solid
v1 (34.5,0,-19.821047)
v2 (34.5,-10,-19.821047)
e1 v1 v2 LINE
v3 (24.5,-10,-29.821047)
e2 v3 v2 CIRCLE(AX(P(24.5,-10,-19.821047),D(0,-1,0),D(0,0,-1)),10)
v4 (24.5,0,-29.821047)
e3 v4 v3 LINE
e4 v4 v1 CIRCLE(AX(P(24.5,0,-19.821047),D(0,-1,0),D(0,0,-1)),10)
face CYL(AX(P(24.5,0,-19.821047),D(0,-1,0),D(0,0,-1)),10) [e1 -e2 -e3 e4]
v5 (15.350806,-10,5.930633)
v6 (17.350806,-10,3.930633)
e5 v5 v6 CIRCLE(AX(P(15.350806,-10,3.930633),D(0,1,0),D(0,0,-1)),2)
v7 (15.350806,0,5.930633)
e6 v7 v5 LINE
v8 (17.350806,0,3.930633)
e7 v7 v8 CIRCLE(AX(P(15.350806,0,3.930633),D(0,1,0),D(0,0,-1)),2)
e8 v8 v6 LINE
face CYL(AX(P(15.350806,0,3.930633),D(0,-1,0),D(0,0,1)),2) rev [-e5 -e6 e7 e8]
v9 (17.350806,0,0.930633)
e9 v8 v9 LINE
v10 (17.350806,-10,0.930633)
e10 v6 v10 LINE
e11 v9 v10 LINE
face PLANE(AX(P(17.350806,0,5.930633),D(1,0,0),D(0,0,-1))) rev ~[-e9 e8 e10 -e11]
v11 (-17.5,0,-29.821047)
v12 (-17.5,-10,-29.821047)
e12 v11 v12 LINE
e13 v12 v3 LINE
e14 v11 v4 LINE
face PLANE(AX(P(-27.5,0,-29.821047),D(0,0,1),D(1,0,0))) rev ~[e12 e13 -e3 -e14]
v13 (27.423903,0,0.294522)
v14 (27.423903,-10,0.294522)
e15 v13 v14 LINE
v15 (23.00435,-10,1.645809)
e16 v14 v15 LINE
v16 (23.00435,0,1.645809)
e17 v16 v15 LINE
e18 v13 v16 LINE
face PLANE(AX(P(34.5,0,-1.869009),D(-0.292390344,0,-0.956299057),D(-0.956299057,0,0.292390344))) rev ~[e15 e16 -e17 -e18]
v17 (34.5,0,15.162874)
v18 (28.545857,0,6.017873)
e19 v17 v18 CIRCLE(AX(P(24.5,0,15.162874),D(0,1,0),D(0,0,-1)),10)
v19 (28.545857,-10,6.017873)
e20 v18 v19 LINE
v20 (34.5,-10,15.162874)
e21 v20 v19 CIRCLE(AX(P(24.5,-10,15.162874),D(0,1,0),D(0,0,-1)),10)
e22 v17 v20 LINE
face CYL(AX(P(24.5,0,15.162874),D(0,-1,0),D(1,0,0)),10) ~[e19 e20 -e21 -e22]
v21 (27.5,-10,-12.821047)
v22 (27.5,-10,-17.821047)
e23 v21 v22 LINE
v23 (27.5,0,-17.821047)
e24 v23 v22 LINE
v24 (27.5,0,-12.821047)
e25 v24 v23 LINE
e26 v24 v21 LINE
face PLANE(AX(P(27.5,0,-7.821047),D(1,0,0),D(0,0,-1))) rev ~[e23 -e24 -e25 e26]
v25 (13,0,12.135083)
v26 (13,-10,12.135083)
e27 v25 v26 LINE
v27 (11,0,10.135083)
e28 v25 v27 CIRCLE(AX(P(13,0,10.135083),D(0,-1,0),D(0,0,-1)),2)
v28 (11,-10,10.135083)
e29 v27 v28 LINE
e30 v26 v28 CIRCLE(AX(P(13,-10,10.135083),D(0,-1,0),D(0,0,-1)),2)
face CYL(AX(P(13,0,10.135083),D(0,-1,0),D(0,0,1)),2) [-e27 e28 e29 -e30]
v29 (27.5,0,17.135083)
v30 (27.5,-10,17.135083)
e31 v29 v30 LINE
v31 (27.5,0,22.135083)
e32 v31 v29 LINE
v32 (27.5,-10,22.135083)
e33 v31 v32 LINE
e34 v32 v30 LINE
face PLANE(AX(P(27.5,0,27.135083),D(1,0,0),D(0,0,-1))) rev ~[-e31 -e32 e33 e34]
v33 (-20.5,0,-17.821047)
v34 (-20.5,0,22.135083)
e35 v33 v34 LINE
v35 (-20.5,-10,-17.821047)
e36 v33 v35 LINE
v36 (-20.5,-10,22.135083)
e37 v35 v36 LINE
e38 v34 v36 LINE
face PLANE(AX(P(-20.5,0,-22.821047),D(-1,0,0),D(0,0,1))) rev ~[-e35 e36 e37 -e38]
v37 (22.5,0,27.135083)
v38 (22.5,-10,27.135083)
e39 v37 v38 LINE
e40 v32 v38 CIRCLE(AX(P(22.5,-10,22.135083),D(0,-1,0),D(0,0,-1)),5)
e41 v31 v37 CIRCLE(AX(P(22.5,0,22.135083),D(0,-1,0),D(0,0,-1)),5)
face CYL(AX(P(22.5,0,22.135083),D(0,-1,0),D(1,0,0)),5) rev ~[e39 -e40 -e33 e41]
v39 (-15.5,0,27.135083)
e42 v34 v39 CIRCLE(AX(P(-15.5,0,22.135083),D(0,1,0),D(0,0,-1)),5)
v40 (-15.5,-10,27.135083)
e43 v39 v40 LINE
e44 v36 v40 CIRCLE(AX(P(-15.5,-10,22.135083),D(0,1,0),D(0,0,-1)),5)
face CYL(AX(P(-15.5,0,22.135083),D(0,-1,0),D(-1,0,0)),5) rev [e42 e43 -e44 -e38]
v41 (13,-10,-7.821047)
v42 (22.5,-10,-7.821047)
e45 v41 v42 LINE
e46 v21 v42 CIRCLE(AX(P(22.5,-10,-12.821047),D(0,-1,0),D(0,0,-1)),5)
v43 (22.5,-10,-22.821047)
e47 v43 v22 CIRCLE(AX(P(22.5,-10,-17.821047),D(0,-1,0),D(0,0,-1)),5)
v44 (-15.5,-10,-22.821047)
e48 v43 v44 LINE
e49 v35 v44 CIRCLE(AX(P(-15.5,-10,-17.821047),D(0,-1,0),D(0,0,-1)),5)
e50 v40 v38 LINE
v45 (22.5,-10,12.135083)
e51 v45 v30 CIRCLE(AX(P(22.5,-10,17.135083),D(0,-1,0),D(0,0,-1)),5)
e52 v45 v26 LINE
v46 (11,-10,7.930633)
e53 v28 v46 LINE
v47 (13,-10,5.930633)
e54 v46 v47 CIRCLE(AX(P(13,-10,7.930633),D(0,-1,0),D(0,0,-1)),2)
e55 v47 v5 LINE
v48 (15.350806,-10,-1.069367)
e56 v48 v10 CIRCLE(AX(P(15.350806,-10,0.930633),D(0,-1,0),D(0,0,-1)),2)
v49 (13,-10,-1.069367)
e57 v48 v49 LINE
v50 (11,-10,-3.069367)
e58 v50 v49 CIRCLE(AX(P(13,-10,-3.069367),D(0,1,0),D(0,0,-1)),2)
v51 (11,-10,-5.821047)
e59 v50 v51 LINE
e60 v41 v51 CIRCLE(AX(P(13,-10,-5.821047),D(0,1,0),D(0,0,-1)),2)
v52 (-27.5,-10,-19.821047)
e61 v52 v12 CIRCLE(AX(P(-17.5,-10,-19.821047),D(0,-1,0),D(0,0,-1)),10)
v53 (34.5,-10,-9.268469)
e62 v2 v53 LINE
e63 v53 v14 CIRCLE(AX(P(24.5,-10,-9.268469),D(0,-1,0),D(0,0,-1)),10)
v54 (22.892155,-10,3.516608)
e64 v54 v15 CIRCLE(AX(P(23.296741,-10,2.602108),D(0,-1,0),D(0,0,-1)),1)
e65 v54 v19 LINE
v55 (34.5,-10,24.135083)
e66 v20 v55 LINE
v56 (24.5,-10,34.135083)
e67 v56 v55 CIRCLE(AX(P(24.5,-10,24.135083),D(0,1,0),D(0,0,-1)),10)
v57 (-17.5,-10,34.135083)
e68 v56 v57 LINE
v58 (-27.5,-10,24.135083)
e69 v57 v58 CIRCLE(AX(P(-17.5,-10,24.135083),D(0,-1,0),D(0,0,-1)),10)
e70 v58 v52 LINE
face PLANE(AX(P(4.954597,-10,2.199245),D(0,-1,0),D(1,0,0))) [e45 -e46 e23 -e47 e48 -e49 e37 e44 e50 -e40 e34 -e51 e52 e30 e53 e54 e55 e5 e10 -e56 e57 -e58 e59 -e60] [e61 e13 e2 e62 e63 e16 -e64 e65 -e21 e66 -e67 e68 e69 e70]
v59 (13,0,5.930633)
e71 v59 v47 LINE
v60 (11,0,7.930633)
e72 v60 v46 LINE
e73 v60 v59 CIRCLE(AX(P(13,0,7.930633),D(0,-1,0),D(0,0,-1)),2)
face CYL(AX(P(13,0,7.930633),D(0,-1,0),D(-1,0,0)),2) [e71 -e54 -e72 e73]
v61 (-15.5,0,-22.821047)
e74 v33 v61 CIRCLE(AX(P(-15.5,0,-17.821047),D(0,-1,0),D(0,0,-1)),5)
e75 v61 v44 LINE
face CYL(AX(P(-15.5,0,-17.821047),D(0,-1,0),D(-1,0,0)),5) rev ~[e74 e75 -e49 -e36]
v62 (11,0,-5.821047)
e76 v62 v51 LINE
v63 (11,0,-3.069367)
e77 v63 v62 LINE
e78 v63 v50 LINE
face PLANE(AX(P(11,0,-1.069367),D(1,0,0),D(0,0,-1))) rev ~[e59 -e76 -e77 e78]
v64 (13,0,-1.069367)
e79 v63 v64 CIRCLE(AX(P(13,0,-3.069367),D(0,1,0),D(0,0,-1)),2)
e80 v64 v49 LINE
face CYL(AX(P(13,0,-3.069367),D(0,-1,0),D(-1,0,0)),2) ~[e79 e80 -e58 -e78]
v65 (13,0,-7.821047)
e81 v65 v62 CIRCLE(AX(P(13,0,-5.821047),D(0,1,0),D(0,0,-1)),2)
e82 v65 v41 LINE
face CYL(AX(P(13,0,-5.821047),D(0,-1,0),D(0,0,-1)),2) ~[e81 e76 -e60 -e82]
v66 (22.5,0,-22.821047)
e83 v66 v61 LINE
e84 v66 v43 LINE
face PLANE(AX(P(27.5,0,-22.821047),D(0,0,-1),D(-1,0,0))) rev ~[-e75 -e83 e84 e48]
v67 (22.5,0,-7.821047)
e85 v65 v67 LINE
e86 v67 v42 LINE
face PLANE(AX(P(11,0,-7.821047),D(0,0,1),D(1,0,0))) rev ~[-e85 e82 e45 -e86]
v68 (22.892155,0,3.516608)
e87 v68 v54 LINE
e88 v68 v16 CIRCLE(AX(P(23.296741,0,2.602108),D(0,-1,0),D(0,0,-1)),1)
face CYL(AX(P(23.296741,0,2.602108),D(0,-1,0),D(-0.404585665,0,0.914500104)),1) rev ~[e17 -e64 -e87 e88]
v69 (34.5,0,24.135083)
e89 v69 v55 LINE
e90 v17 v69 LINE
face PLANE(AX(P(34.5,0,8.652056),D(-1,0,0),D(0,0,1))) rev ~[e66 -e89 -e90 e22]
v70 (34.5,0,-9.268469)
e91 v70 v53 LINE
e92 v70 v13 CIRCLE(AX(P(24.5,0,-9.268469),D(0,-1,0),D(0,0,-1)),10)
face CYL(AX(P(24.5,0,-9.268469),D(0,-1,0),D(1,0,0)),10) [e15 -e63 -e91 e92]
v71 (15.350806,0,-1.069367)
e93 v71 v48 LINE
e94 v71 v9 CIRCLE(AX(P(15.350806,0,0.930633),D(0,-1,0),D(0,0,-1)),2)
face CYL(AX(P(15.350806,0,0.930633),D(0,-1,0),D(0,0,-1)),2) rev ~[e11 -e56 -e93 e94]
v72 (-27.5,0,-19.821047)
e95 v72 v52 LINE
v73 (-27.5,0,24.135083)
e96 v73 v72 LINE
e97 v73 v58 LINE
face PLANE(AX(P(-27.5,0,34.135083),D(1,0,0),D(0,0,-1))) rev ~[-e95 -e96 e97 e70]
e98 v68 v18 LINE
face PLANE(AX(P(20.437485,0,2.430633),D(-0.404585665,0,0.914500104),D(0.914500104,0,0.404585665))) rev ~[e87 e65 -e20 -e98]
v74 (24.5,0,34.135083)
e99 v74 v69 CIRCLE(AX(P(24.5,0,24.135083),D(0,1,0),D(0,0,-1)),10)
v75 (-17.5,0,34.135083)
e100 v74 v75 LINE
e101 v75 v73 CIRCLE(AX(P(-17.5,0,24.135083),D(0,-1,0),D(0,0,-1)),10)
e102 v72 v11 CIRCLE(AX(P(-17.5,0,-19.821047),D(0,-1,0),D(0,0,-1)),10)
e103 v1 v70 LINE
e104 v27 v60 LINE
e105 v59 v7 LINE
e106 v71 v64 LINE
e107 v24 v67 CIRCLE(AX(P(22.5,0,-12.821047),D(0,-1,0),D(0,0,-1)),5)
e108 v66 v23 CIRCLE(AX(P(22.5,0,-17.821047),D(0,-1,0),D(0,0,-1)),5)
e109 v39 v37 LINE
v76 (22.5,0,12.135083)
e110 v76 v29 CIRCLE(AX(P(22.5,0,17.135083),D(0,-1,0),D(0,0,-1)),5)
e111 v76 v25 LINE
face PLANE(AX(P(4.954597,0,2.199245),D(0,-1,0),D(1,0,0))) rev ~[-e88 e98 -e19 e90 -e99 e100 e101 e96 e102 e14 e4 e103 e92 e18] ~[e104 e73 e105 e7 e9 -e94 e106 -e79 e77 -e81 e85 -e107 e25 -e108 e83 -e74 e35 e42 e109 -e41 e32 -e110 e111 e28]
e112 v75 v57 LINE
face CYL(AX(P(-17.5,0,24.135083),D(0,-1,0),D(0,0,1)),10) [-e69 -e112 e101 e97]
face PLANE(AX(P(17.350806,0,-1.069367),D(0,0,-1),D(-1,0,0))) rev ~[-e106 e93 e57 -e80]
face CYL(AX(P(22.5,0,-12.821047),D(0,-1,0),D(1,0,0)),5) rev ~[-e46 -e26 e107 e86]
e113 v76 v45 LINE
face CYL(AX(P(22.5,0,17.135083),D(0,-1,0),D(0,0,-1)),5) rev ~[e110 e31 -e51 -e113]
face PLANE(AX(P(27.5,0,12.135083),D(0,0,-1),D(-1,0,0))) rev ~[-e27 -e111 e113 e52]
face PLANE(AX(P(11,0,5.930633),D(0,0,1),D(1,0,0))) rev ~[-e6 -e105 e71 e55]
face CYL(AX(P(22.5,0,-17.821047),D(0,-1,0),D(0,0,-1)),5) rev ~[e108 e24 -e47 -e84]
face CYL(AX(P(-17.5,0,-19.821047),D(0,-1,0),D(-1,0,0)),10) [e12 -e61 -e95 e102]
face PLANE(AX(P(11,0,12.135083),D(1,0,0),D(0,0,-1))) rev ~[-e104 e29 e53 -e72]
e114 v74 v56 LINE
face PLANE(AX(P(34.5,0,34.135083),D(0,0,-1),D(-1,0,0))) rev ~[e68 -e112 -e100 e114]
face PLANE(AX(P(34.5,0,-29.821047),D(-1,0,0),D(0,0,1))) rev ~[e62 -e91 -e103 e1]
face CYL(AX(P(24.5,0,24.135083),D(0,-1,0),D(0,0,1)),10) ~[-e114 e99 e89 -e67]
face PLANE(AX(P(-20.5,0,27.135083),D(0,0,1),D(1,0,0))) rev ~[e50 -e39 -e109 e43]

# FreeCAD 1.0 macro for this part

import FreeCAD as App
import Part
import Sketcher
from FreeCAD import Vector
Q = App.Units.Quantity


def edges_at(feature, points):
    """Names of the edges that pass closest to the given points."""
    edges = feature.Shape.Edges
    near = lambda p: min(range(len(edges)), key=lambda i: edges[i].distToShape(Part.Vertex(*p))[0])
    return sorted({f"Edge{near(p) + 1}" for p in points})


def add_polygon(sketch, points):
    """Adds a closed chain of lines whose ends are joined by coincident constraints."""
    first, n = sketch.GeometryCount, len(points)
    for a, b in zip(points, points[1:] + points[:1]):
        sketch.addGeometry(Part.LineSegment(App.Vector(*a, 0), App.Vector(*b, 0)), False)
    for i in range(n):
        sketch.addConstraint(Sketcher.Constraint("Coincident", first + i, 2, first + (i + 1) % n, 1))

doc = App.newDocument("Part")
body = doc.addObject("PartDesign::Body", "Body")

# Sketch on XZ plane
sketch1 = body.newObject("Sketcher::SketchObject", "Sketch")
sketch1.AttachmentSupport = (doc.getObject("XZ_Plane"), [""])
sketch1.MapMode = "FlatFace"
add_polygon(sketch1, [(-28, 34), (-28, -30), (34, -30), (34, -2), (20, 2), (34, 9), (34, 34)])  # lines 0-6
add_polygon(sketch1, [(-20, -23), (-20, 27), (28, 27), (28, 12), (11, 12), (11, 6), (17, 6), (17, -1), (11, -1), (11, -8), (28, -8), (28, -23)])  # lines 7-18
sketch1.addConstraint([
    Sketcher.Constraint("Vertical", 0),
    Sketcher.Constraint("Horizontal", 1),
    Sketcher.Constraint("Vertical", 2),
    Sketcher.Constraint("Vertical", 5),
    Sketcher.Constraint("Horizontal", 6),
    Sketcher.Constraint("Vertical", 7),
    Sketcher.Constraint("Horizontal", 8),
    Sketcher.Constraint("Vertical", 9),
    Sketcher.Constraint("Horizontal", 10),
    Sketcher.Constraint("Vertical", 11),
    Sketcher.Constraint("Horizontal", 12),
    Sketcher.Constraint("Vertical", 13),
    Sketcher.Constraint("Horizontal", 14),
    Sketcher.Constraint("Vertical", 15),
    Sketcher.Constraint("Horizontal", 16),
    Sketcher.Constraint("Vertical", 17),
    Sketcher.Constraint("Horizontal", 18),
    Sketcher.Constraint("Vertical", 2, 2, 4, 2),
    Sketcher.Constraint("Vertical", 11, 2, 14, 2),
    Sketcher.Constraint("Vertical", 9, 2, 16, 2),
    Sketcher.Constraint("Equal", 9, 17),
    Sketcher.Constraint("DistanceX", 1, 1, 1, 2, Q("62 mm")),
    Sketcher.Constraint("DistanceX", 8, 1, 8, 2, Q("48 mm")),
    Sketcher.Constraint("DistanceY", 9, 2, 9, 1, Q("15 mm")),
    Sketcher.Constraint("DistanceY", 13, 2, 13, 1, Q("7 mm")),
    Sketcher.Constraint("DistanceX", 10, 2, 10, 1, Q("16.5 mm")),
    Sketcher.Constraint("DistanceX", -1, 1, 10, 2, Q("11 mm")),
    Sketcher.Constraint("DistanceX", 6, 2, 7, 2, Q("7 mm")),
    Sketcher.Constraint("DistanceY", 7, 2, 6, 2, Q("7 mm")),
    Sketcher.Constraint("DistanceY", 1, 2, 17, 2, Q("7 mm")),
    Sketcher.Constraint("DistanceY", 3, 2, 11, 2, Q("3.5 mm")),
    Sketcher.Constraint("DistanceY", 0, 2, 0, 1, Q("63.95613 mm")),
    Sketcher.Constraint("DistanceY", 2, 1, 2, 2, Q("27.952038 mm")),
    Sketcher.Constraint("DistanceY", 11, 2, 11, 1, Q("6.20445 mm")),
    Sketcher.Constraint("Distance", 4, Q("15.37727 mm")),
    Sketcher.Constraint("DistanceX", 12, 1, 12, 2, Q("6.350806 mm")),
    Sketcher.Constraint("DistanceY", 5, 1, 5, 2, Q("25.483027 mm")),
    Sketcher.Constraint("DistanceY", 2, 2, -1, 1, Q("1.869009 mm")),
])
pad1 = body.newObject("PartDesign::Pad", "Pad")
pad1.Profile = sketch1
pad1.Length = 10
doc.recompute()

fillet = body.newObject("PartDesign::Fillet", "Fillet")
fillet.Base = (pad1, edges_at(pad1, [
    (-20.5, -5, 27.135),
    (27.5, -5, 27.135),
    (27.5, -5, 12.135),
    (-20.5, -5, -22.821),
    (27.5, -5, -22.821),
    (27.5, -5, -7.821),
]))
fillet.Radius = 5
doc.recompute()

fillet2 = body.newObject("PartDesign::Fillet", "Fillet001")
fillet2.Base = (fillet, edges_at(fillet, [
    (11, -5, 12.135),
    (11, -5, 5.931),
    (17.351, -5, 5.931),
    (17.351, -5, -1.069),
    (11, -5, -1.069),
    (11, -5, -7.821),
]))
fillet2.Radius = 2
doc.recompute()

fillet3 = body.newObject("PartDesign::Fillet", "Fillet002")
fillet3.Base = (fillet2, edges_at(fillet2, [
    (34.5, -5, 34.135),
    (34.5, -5, 8.652),
    (34.5, -5, -1.869),
    (34.5, -5, -29.821),
]))
fillet3.Radius = 10
doc.recompute()

fillet4 = body.newObject("PartDesign::Fillet", "Fillet003")
fillet4.Base = (fillet3, edges_at(fillet3, [(20.437, -5, 2.431)]))
fillet4.Radius = 1
doc.recompute()

fillet5 = body.newObject("PartDesign::Fillet", "Fillet004")
fillet5.Base = (fillet4, edges_at(fillet4, [(-27.5, -5, 34.135), (-27.5, -5, -29.821)]))
fillet5.Radius = 10

doc.recompute()
